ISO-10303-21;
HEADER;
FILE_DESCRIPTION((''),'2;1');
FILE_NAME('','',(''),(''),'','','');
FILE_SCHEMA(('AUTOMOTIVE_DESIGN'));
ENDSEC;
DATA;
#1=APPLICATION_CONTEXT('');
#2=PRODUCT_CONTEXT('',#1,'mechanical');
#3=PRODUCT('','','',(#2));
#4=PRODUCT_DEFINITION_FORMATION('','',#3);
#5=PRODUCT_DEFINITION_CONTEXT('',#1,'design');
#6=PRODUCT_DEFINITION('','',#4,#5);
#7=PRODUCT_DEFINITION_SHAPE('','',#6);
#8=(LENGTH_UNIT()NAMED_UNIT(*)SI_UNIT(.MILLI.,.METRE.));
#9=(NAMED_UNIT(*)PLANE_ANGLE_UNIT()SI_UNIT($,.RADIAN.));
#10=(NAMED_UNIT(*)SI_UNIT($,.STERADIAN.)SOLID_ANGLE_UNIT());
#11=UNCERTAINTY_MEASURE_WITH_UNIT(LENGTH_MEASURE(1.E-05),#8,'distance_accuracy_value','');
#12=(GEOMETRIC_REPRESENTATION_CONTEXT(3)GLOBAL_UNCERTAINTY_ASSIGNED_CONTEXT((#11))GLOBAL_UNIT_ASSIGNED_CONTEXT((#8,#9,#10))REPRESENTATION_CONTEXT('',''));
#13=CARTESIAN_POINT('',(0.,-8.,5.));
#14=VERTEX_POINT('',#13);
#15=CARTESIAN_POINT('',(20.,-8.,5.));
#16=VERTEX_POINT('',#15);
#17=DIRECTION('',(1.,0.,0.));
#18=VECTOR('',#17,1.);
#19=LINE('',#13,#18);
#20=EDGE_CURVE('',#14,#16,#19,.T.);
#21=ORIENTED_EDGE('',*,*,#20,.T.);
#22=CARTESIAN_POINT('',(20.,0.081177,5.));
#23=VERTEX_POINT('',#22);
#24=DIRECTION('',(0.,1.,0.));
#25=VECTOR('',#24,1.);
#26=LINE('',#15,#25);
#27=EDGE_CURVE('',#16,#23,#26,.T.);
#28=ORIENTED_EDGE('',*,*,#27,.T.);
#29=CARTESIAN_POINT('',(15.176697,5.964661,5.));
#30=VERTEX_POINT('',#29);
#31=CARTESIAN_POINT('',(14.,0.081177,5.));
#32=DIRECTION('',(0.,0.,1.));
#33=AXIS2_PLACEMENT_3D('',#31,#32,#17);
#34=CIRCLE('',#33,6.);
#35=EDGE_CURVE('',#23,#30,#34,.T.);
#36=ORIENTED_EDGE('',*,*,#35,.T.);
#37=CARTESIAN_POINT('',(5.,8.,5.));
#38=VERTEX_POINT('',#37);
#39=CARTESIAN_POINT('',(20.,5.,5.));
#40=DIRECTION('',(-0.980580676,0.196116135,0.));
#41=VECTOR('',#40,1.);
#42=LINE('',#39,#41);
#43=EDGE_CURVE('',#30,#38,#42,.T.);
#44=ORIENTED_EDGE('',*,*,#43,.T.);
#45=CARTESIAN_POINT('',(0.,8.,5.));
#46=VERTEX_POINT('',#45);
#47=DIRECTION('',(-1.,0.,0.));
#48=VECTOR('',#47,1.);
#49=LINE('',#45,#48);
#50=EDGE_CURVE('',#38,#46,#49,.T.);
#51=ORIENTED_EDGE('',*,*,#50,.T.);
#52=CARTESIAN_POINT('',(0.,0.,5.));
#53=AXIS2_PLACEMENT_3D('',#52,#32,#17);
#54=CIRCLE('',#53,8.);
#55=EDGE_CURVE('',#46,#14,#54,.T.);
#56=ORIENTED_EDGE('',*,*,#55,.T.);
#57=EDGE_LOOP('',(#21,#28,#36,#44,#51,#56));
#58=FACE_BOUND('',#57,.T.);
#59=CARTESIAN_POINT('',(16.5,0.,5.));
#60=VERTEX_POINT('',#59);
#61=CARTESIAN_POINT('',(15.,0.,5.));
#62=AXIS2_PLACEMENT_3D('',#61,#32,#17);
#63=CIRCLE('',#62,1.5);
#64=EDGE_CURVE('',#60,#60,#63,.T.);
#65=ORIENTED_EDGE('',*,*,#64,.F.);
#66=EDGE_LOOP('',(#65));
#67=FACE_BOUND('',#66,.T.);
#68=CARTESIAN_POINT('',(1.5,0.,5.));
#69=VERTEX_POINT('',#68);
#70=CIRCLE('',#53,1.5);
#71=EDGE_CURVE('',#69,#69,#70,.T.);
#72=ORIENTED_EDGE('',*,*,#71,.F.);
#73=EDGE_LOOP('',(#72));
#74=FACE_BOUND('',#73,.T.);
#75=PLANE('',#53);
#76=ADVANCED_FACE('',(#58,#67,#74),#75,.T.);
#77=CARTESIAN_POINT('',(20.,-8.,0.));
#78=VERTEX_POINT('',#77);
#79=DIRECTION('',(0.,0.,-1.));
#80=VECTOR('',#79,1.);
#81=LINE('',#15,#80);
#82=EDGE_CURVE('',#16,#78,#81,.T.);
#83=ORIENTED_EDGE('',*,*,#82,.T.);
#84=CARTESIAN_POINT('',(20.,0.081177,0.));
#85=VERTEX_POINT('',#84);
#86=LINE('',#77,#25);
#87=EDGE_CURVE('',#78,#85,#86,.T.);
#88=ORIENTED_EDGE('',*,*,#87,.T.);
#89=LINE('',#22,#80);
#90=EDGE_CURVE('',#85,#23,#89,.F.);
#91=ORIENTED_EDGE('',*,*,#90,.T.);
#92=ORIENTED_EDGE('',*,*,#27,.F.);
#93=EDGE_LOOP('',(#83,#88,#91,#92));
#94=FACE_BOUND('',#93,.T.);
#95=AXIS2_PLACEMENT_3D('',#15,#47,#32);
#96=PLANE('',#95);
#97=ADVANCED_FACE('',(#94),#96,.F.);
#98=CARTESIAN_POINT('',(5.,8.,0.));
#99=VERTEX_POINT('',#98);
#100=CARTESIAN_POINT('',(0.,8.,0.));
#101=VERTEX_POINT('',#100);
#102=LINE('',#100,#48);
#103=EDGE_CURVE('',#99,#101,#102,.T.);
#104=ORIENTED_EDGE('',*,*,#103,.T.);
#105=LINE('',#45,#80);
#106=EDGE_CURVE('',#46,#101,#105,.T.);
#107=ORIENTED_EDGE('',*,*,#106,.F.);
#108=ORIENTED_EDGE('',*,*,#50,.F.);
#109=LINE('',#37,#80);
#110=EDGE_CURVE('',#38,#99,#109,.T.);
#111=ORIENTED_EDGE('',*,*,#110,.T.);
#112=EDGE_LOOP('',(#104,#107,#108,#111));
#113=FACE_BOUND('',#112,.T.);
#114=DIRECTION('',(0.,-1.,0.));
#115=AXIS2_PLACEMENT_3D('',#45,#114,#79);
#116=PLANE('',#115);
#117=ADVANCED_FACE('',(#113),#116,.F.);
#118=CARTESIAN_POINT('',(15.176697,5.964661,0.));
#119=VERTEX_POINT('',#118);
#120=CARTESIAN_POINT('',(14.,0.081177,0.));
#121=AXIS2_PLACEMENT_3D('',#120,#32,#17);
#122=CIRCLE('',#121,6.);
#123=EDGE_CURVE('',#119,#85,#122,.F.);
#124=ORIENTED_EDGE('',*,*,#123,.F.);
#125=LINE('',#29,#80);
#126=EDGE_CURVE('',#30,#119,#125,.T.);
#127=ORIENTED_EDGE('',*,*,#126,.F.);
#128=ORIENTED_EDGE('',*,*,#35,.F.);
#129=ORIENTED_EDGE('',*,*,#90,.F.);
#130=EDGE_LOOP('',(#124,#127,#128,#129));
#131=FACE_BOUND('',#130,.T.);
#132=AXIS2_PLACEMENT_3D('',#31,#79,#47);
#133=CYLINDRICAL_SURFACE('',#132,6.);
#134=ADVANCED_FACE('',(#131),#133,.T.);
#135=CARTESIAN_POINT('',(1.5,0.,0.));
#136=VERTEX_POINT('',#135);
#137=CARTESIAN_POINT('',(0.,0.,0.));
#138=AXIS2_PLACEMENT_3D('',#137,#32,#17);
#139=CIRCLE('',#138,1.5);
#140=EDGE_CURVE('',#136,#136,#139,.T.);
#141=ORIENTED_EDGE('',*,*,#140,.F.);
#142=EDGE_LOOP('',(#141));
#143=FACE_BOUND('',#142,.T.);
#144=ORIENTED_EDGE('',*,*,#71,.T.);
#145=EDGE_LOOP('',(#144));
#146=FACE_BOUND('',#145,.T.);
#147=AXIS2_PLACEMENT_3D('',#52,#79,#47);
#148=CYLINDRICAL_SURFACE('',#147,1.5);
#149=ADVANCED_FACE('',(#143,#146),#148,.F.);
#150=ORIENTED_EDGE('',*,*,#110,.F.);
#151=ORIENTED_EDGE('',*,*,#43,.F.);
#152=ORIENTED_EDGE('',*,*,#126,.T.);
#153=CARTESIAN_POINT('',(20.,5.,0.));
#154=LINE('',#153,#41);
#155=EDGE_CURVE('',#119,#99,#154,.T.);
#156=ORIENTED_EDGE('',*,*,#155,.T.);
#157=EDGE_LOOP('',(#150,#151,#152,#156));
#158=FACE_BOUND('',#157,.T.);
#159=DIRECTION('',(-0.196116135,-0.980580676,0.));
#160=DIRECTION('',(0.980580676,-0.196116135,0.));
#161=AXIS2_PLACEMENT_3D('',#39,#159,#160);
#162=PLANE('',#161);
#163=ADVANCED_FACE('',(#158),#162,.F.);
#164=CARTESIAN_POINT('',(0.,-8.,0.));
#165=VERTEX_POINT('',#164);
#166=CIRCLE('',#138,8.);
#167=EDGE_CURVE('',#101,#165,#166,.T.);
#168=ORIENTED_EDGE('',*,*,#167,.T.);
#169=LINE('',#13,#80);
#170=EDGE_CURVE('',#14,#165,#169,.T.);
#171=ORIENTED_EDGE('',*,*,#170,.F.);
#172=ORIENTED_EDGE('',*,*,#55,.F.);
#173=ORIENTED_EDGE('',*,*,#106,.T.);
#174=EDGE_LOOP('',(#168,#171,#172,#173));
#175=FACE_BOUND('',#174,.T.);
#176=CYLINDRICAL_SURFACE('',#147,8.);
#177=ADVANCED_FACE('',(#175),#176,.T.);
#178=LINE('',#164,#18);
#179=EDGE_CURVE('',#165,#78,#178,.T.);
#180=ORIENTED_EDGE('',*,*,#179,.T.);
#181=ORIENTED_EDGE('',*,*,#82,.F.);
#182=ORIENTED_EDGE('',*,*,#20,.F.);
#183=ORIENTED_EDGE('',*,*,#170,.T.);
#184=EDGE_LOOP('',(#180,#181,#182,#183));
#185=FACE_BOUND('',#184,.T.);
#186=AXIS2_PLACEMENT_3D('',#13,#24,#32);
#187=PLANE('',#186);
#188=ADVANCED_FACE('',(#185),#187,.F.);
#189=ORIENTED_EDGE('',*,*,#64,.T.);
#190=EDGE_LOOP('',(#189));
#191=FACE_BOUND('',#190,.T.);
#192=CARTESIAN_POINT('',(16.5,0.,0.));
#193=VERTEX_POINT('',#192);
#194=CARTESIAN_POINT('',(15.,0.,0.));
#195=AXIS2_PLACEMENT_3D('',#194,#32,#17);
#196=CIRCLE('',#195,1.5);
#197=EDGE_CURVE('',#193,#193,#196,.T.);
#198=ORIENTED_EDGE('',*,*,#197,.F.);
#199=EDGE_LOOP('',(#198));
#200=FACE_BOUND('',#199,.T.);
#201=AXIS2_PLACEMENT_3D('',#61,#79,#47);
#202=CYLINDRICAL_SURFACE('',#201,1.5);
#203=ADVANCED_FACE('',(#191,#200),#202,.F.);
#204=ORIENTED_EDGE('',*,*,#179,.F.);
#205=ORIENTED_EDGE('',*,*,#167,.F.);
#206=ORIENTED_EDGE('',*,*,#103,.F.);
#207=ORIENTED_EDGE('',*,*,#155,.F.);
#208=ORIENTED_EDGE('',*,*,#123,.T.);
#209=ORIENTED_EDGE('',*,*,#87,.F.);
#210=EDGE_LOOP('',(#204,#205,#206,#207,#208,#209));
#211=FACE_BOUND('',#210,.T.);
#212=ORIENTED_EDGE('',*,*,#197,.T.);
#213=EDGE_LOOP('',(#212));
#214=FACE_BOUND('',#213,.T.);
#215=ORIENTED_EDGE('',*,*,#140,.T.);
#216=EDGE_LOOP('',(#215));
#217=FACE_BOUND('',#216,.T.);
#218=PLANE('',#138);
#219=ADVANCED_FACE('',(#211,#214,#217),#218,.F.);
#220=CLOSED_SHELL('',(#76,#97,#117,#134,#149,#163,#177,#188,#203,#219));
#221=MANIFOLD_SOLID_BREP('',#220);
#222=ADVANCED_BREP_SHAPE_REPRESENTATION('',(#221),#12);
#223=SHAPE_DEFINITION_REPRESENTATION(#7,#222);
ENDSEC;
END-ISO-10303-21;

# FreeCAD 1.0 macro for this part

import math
import FreeCAD as App
import Part
import Sketcher
from FreeCAD import Vector
Q = App.Units.Quantity


def edges_at(feature, points):
    """Names of the edges that pass closest to the given points."""
    edges = feature.Shape.Edges
    near = lambda p: min(range(len(edges)), key=lambda i: edges[i].distToShape(Part.Vertex(*p))[0])
    return sorted({f"Edge{near(p) + 1}" for p in points})

doc = App.newDocument("Part")
body = doc.addObject("PartDesign::Body", "Body")

sketch1 = body.newObject("Sketcher::SketchObject", "Sketch")
sketch1.AttachmentSupport = (doc.getObject("XY_Plane"), [""])
sketch1.MapMode = "FlatFace"
sketch1.addGeometry([
    Part.LineSegment(Vector(5, 8, 0), Vector(0, 8, 0)),
    Part.ArcOfCircle(Part.Circle(Vector(0, 0, 0), Vector(0, 0, 1), 8), math.radians(90), math.radians(270)),
    Part.LineSegment(Vector(0, -8, 0), Vector(20, -8, 0)),
    Part.LineSegment(Vector(20, -8, 0), Vector(20, 5, 0)),
    Part.LineSegment(Vector(20, 5, 0), Vector(5, 8, 0)),
    Part.Circle(Vector(15, 0, 0), Vector(0, 0, 1), 1.5),
    Part.Circle(Vector(0, 0, 0), Vector(0, 0, 1), 1.5),
], False)
sketch1.addConstraint([
    Sketcher.Constraint("Tangent", 0, 2, 1, 1),
    Sketcher.Constraint("Tangent", 1, 2, 2, 1),
    Sketcher.Constraint("Coincident", 2, 2, 3, 1),
    Sketcher.Constraint("Coincident", 3, 2, 4, 1),
    Sketcher.Constraint("Coincident", 4, 2, 0, 1),
    Sketcher.Constraint("Horizontal", 0),
    Sketcher.Constraint("Horizontal", 2),
    Sketcher.Constraint("Vertical", 3),
    Sketcher.Constraint("Coincident", 1, 3, -1, 1),
    Sketcher.Constraint("Coincident", 6, 3, -1, 1),
    Sketcher.Constraint("Equal", 5, 6),
    Sketcher.Constraint("PointOnObject", 5, 3, -1),
    Sketcher.Constraint("Diameter", 5, Q("3 mm")),
    Sketcher.Constraint("Radius", 1, Q("8 mm")),
    Sketcher.Constraint("DistanceX", 0, 2, 0, 1, Q("5 mm")),
    Sketcher.Constraint("DistanceX", 2, 1, 2, 2, Q("20 mm")),
    Sketcher.Constraint("DistanceY", 3, 1, 3, 2, Q("13 mm")),
    Sketcher.Constraint("DistanceX", -1, 1, 5, 3, Q("15 mm")),
])
pad1 = body.newObject("PartDesign::Pad", "Pad")
pad1.Profile = sketch1
pad1.Length = 5
doc.recompute()

fillet = body.newObject("PartDesign::Fillet", "Fillet")
fillet.Base = (pad1, edges_at(pad1, [(20, 5, 2.5)]))
fillet.Radius = 6

doc.recompute()
